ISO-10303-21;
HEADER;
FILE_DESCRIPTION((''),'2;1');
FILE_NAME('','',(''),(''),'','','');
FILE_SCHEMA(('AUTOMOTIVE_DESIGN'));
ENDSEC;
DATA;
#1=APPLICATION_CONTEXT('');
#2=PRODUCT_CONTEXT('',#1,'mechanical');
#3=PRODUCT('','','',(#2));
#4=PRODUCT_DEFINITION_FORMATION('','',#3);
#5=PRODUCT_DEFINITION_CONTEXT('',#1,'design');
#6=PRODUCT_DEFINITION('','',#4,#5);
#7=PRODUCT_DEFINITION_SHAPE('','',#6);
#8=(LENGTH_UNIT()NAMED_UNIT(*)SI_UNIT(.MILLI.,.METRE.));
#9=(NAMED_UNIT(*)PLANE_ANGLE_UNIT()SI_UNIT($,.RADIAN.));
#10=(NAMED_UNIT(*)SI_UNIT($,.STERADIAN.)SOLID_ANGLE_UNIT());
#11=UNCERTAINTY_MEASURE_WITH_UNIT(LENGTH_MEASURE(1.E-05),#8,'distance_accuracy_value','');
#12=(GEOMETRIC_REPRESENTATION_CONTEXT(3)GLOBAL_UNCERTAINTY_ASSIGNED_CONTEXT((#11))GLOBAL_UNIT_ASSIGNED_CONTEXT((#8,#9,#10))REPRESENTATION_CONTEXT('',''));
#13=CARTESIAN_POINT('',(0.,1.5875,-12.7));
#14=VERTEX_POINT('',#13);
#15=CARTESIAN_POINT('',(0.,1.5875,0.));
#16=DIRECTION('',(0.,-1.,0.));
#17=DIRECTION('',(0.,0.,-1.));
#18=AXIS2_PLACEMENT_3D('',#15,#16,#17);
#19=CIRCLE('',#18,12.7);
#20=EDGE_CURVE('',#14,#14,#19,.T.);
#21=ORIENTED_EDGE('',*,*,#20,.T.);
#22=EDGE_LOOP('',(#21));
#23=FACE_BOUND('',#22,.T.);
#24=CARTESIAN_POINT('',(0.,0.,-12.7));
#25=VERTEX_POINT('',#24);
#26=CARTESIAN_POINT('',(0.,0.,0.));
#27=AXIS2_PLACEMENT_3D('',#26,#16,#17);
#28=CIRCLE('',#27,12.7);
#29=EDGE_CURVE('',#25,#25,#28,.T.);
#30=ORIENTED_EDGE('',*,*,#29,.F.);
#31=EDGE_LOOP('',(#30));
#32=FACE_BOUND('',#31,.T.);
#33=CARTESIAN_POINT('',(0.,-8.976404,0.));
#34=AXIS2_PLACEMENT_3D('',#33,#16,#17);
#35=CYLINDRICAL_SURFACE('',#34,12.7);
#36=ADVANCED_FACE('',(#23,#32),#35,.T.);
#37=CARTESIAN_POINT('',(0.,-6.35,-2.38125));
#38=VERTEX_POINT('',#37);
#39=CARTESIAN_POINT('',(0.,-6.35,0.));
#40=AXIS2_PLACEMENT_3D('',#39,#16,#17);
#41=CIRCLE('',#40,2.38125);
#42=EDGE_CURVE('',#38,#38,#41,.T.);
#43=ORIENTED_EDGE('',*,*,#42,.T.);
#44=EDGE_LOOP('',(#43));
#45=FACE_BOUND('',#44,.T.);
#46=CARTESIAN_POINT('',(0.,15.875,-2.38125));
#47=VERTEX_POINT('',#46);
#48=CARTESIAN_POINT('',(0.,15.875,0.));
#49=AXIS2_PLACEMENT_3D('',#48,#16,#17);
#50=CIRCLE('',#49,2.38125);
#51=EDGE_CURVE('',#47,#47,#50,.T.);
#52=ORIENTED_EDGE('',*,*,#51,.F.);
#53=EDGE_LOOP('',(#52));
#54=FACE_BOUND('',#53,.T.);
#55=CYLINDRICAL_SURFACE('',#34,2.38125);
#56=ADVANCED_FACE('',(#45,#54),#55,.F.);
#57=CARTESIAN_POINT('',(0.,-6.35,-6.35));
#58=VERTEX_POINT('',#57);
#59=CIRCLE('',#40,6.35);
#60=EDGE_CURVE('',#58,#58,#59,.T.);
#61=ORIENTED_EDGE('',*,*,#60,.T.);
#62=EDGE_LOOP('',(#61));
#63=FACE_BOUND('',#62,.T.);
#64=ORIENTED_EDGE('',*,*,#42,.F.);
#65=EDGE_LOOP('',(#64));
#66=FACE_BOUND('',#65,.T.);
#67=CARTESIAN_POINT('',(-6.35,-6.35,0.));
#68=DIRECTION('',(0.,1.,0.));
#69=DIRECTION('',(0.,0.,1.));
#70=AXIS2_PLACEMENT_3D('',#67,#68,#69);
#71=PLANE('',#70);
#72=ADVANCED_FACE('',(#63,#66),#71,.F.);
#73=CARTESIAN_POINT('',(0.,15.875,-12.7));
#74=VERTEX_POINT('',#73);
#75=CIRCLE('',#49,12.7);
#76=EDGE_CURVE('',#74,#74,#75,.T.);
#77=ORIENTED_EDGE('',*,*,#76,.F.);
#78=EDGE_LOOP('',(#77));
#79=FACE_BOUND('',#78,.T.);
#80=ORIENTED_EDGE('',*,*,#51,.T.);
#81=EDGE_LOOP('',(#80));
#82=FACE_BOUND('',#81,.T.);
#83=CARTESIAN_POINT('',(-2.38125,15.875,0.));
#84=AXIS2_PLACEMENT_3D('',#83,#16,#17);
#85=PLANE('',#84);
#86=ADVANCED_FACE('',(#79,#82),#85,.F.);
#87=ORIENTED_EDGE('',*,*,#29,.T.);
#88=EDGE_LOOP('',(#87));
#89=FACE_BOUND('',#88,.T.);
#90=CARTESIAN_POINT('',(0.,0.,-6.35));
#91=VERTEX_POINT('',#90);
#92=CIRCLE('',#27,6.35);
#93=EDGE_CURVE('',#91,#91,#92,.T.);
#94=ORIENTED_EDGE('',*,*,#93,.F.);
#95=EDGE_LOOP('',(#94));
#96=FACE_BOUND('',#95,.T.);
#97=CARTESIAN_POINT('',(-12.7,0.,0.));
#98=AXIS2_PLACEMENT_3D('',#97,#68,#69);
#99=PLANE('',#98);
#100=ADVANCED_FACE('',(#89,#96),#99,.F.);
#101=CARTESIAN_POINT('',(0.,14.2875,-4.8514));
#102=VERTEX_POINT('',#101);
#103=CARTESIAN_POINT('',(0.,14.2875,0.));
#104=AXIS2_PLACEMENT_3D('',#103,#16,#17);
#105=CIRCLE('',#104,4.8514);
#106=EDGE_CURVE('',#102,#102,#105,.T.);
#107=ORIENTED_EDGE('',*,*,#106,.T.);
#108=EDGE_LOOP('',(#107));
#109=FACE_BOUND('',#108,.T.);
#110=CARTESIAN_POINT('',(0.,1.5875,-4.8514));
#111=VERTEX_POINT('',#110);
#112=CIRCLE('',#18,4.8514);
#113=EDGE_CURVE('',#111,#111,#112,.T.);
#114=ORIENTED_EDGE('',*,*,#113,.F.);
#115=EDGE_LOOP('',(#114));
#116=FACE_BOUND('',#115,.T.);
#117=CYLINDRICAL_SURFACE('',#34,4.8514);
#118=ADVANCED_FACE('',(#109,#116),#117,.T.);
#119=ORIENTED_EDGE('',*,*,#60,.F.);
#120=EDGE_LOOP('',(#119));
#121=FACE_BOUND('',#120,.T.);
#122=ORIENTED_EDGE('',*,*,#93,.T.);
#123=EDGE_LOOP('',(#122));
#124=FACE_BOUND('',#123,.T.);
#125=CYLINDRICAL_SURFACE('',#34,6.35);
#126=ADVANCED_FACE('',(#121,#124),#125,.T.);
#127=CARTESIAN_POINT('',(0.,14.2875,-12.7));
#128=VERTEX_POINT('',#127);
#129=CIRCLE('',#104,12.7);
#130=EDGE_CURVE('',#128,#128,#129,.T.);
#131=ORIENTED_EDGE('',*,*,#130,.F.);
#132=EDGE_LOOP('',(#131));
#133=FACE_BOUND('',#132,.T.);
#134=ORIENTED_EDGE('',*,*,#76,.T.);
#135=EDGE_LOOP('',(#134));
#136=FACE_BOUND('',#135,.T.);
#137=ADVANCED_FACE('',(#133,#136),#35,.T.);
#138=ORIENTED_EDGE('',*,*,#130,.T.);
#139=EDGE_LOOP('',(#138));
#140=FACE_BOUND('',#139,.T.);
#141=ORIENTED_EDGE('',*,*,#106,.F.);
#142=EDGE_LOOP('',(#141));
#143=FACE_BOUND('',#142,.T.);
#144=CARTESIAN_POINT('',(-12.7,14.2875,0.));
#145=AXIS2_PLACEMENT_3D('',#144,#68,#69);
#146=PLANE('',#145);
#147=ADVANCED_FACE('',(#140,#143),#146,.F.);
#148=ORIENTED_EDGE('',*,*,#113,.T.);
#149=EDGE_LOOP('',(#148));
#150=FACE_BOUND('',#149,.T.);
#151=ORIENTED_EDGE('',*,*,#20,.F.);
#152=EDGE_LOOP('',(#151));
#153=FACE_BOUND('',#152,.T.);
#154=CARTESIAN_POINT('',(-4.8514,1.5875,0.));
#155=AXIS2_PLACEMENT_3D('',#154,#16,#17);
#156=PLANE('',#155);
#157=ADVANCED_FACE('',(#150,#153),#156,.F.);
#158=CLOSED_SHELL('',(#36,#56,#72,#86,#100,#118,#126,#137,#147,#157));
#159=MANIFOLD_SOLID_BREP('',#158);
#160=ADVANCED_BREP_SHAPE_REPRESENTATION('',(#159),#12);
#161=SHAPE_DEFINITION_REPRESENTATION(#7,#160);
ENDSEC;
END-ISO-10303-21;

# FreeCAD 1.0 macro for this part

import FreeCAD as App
import Part
import Sketcher

V = App.Vector
Q = App.Units.Quantity


def add_polygon(sketch, points):
    """Adds a closed chain of lines whose ends are joined by coincident constraints."""
    first, n = sketch.GeometryCount, len(points)
    for a, b in zip(points, points[1:] + points[:1]):
        sketch.addGeometry(Part.LineSegment(App.Vector(*a, 0), App.Vector(*b, 0)), False)
    for i in range(n):
        sketch.addConstraint(Sketcher.Constraint("Coincident", first + i, 2, first + (i + 1) % n, 1))

doc = App.newDocument("Part")
body = doc.addObject("PartDesign::Body", "Body")

# Sketch on XY plane
sketch1 = doc.addObject("Sketcher::SketchObject", "Sketch")
body.addObject(sketch1)
sketch1.AttachmentSupport = (doc.XY_Plane, [""])
sketch1.MapMode = "FlatFace"
add_polygon(sketch1, [(-2.38125, 15.875), (-12.7, 15.875), (-12.7, 14.2875), (-4.8514, 14.2875), (-4.8514, 1.5875), (-12.7, 1.5875), (-12.7, 0), (-6.35, 0), (-6.35, -6.35), (-2.38125, -6.35)])  # lines 0-9
sketch1.addConstraint([
    Sketcher.Constraint("Horizontal", 0),
    Sketcher.Constraint("Vertical", 1),
    Sketcher.Constraint("Horizontal", 2),
    Sketcher.Constraint("Vertical", 3),
    Sketcher.Constraint("Horizontal", 4),
    Sketcher.Constraint("Vertical", 5),
    Sketcher.Constraint("Horizontal", 6),
    Sketcher.Constraint("Vertical", 7),
    Sketcher.Constraint("Horizontal", 8),
    Sketcher.Constraint("Vertical", 9),
    Sketcher.Constraint("PointOnObject", 5, 2, -1),
    Sketcher.Constraint("Vertical", 1, 2, 4, 2),
    Sketcher.Constraint("Equal", 1, 5),
    Sketcher.Constraint("Equal", 6, 7),
    Sketcher.Constraint("DistanceY", 3, 2, 3, 1, Q("0.5 in")),
    Sketcher.Constraint("DistanceX", 6, 1, 6, 2, Q("0.25 in")),
    Sketcher.Constraint("DistanceX", 0, 2, -1, 1, Q("0.5 in")),
    Sketcher.Constraint("DistanceX", 0, 2, 0, 1, Q("0.40625 in")),
    Sketcher.Constraint("DistanceX", 2, 1, 2, 2, Q("0.309 in")),
    Sketcher.Constraint("DistanceY", 1, 2, 1, 1, Q("0.0625 in")),
])
revolution = doc.addObject("PartDesign::Revolution", "Revolution")
body.addObject(revolution)
revolution.Profile = sketch1
revolution.ReferenceAxis = (sketch1, ["V_Axis"])
revolution.Angle = 360

doc.recompute()
